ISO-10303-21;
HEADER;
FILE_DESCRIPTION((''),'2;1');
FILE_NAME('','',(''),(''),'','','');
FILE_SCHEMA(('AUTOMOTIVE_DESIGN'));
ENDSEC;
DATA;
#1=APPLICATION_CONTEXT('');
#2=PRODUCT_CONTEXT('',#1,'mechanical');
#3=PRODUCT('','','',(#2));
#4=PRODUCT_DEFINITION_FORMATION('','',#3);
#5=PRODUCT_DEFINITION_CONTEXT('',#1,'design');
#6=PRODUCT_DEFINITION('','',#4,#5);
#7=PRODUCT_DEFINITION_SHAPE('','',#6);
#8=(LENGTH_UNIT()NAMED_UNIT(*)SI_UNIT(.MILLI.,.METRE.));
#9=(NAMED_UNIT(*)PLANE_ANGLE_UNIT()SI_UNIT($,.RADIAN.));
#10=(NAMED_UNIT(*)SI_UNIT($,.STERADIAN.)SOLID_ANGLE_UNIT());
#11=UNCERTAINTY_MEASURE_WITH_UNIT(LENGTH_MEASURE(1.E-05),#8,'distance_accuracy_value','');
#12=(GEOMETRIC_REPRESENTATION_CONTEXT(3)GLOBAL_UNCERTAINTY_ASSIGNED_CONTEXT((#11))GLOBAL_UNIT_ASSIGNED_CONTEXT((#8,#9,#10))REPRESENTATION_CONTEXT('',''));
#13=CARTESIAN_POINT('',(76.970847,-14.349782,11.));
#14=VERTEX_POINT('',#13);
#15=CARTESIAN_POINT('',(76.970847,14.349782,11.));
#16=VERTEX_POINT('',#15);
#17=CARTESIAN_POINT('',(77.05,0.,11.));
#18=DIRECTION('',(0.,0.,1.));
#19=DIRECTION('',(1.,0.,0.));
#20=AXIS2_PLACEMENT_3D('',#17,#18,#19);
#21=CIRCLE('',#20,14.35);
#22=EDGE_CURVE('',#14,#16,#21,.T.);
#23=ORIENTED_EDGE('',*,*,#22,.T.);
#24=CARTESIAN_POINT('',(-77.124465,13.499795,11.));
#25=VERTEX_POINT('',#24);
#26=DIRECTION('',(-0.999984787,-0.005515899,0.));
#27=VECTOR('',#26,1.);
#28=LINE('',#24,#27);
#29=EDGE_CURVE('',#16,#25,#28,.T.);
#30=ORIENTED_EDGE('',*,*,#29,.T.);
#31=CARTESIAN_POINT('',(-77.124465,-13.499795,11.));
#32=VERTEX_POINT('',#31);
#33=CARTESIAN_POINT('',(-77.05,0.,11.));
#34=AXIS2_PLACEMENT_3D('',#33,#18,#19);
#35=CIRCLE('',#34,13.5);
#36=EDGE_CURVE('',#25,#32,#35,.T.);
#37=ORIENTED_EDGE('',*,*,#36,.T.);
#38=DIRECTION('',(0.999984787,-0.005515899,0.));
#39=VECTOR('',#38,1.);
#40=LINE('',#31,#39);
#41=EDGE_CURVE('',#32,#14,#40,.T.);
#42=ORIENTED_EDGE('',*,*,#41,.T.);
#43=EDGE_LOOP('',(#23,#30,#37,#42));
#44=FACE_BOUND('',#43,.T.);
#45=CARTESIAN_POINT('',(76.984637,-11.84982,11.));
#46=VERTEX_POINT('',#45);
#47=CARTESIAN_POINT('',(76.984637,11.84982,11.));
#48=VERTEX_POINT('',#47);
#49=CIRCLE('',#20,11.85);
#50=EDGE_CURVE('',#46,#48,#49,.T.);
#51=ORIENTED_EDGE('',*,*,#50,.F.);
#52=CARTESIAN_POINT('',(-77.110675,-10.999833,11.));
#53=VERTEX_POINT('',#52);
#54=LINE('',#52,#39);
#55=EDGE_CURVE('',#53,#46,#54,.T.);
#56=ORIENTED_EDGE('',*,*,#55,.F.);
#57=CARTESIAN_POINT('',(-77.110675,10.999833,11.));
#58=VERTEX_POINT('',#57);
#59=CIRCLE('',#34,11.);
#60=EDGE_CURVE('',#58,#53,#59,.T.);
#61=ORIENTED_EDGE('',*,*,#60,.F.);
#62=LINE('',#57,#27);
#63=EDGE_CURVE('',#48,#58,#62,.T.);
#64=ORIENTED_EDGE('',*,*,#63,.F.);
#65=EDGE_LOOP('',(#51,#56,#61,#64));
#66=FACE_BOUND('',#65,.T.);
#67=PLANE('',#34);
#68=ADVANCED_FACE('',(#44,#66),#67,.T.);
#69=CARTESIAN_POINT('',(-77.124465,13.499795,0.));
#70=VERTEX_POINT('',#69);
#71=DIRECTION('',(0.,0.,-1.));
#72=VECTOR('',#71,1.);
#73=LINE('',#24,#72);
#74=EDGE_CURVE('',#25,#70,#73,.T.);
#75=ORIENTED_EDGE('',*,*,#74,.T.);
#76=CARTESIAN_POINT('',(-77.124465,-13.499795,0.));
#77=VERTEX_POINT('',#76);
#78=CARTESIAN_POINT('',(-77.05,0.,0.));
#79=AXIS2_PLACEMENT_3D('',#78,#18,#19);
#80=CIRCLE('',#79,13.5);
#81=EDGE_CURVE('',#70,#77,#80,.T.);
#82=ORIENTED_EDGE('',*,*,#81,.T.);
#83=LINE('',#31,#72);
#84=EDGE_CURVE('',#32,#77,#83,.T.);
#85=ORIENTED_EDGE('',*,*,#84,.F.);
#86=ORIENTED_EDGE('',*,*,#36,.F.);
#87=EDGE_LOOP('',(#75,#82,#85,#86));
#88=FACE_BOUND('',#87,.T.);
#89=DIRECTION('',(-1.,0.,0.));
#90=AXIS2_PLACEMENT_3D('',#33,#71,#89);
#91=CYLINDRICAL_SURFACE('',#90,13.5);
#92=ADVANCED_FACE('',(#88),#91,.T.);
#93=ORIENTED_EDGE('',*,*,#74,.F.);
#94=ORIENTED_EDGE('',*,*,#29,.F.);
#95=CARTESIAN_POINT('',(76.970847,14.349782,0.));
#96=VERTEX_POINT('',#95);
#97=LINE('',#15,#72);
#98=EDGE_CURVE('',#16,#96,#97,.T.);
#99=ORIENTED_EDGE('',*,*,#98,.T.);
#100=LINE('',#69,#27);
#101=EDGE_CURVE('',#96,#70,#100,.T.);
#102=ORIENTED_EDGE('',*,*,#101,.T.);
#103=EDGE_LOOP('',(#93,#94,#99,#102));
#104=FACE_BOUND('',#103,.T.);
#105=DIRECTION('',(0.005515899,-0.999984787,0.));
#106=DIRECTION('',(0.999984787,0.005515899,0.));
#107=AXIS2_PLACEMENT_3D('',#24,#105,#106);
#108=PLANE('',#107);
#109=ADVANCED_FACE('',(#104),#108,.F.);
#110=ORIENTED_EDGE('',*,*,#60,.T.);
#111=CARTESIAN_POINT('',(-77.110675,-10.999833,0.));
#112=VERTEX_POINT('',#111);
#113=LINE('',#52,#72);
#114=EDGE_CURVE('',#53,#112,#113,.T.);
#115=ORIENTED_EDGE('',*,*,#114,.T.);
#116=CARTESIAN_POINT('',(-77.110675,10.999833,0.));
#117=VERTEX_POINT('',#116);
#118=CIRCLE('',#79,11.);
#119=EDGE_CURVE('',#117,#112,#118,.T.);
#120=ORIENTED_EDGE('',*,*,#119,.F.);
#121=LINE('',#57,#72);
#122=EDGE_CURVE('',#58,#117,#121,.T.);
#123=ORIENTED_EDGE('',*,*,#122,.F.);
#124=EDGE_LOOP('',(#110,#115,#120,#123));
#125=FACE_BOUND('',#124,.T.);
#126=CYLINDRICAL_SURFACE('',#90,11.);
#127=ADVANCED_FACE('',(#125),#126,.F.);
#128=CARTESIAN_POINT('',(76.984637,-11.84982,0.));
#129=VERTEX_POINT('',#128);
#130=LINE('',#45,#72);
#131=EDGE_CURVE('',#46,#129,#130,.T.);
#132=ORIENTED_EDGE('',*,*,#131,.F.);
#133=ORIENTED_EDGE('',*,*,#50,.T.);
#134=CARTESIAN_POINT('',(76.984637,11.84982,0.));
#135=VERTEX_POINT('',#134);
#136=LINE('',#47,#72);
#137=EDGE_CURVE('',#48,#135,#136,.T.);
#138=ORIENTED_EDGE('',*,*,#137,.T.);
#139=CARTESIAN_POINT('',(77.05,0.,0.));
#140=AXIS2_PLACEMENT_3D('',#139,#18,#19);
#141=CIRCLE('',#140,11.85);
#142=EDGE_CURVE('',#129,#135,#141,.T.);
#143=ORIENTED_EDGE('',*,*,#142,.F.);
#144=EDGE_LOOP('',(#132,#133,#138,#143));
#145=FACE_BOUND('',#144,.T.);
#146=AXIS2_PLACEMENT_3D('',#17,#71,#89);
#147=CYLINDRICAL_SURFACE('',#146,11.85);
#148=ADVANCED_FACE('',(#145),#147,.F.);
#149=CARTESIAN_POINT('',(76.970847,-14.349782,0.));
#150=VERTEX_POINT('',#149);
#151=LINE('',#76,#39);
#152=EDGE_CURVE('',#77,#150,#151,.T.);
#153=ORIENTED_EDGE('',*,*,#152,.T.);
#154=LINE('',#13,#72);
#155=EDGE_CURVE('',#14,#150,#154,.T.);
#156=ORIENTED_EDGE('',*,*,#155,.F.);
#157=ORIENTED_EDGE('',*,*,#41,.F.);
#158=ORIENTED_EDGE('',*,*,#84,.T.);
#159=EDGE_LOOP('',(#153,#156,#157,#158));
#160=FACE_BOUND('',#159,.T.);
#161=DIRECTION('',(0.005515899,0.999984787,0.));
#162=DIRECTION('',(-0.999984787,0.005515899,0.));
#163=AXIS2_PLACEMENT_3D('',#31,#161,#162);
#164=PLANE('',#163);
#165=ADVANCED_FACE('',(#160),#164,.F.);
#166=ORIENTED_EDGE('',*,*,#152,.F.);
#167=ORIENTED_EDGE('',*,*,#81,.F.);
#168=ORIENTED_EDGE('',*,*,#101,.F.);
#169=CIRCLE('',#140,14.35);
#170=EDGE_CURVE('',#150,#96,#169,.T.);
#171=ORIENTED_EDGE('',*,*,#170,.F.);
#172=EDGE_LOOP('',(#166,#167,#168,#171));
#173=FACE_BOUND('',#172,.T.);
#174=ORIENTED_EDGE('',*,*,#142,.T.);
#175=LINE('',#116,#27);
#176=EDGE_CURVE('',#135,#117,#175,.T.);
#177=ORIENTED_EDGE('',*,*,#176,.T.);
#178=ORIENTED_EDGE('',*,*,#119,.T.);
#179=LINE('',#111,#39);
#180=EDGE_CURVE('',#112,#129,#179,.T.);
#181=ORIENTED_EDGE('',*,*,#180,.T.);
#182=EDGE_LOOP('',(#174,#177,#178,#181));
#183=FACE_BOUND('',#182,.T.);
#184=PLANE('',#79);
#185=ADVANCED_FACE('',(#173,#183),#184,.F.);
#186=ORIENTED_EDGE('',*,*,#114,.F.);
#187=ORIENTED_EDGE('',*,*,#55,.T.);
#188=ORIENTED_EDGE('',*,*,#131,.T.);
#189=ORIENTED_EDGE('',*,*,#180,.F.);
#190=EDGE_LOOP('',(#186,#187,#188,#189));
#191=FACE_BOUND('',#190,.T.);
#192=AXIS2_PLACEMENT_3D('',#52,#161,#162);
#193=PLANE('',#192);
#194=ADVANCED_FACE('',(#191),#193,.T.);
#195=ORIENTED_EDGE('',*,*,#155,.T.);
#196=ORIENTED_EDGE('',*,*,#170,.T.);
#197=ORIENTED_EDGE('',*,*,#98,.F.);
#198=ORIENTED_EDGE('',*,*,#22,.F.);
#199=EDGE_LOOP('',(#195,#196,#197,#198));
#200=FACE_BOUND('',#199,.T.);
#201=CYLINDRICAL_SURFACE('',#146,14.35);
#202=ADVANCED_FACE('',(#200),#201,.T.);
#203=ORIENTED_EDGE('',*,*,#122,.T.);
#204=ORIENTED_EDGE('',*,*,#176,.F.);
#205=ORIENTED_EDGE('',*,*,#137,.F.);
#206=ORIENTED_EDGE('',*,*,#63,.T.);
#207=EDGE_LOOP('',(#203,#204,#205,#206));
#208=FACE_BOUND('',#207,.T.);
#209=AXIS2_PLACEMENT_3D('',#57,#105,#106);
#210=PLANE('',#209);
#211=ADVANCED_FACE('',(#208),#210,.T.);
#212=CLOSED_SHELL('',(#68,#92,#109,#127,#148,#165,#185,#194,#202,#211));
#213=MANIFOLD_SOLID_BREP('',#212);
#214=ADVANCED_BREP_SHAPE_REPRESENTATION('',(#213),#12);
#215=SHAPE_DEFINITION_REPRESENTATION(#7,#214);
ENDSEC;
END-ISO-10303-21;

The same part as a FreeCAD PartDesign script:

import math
import FreeCAD as App
import Part
import Sketcher

doc = App.newDocument("Part")
params = doc.addObject("Spreadsheet::Sheet", "Params")
for row, (alias, value) in enumerate([
    ("sketch1_radius", "11 mm"),
    ("sketch1_radius2", "13.5 mm"),
    ("sketch1_radius3", "14.35 mm"),
    ("pad1_length", "11 mm"),
], start=1):
    params.set(f"A{row}", alias)
    params.set(f"B{row}", "=" + value)
    params.setAlias(f"B{row}", alias)

body = doc.addObject("PartDesign::Body", "Body")

# Sketch on XY plane
sketch1 = body.newObject("Sketcher::SketchObject", "Sketch")
sketch1.AttachmentSupport = (doc.getObject("XY_Plane"), [""])
sketch1.MapMode = "FlatFace"
sketch1.addGeometry([
    Part.LineSegment(App.Vector(77, 14, 0), App.Vector(-77, 13, 0)),  # 0
    Part.ArcOfCircle(Part.Circle(App.Vector(-77, 0, 0), App.Vector(0, 0, 1), 14), math.radians(90), math.radians(270)),  # 1
    Part.LineSegment(App.Vector(-77, -13, 0), App.Vector(77, -14, 0)),  # 2
    Part.ArcOfCircle(Part.Circle(App.Vector(77, 0, 0), App.Vector(0, 0, 1), 14), math.radians(-90), math.radians(90)),  # 3
    Part.LineSegment(App.Vector(-77, 11, 0), App.Vector(77, 12, 0)),  # 4
    Part.ArcOfCircle(Part.Circle(App.Vector(77, 0, 0), App.Vector(0, 0, 1), 12), math.radians(-90), math.radians(90)),  # 5
    Part.LineSegment(App.Vector(77, -12, 0), App.Vector(-77, -11, 0)),  # 6
    Part.ArcOfCircle(Part.Circle(App.Vector(-77, 0, 0), App.Vector(0, 0, 1), 11), math.radians(90), math.radians(270)),  # 7
], False)
sketch1.addConstraint([
    Sketcher.Constraint("Tangent", 0, 2, 1, 1),
    Sketcher.Constraint("Tangent", 1, 2, 2, 1),
    Sketcher.Constraint("Tangent", 2, 2, 3, 1),
    Sketcher.Constraint("Tangent", 3, 2, 0, 1),
    Sketcher.Constraint("Tangent", 4, 2, 5, 2),
    Sketcher.Constraint("Tangent", 5, 1, 6, 1),
    Sketcher.Constraint("Tangent", 6, 2, 7, 2),
    Sketcher.Constraint("Tangent", 7, 1, 4, 1),
    Sketcher.Constraint("Coincident", 5, 3, 3, 3),
    Sketcher.Constraint("Coincident", 7, 3, 1, 3),
    Sketcher.Constraint("Symmetric", 1, 3, 3, 3, -1, 1),
    Sketcher.Constraint("PointOnObject", 1, 3, -1),
    Sketcher.Constraint("Parallel", 0, 4),
    Sketcher.Constraint("Radius", 7, 11.0),
    Sketcher.Constraint("Radius", 1, 13.5),
    Sketcher.Constraint("Radius", 3, 14.35),
    Sketcher.Constraint("DistanceX", 1, 3, 3, 3, 154.1),
])
sketch1.setExpression("Constraints[13]", "Params.sketch1_radius")
sketch1.setExpression("Constraints[14]", "Params.sketch1_radius2")
sketch1.setExpression("Constraints[15]", "Params.sketch1_radius3")
pad1 = body.newObject("PartDesign::Pad", "Pad")
pad1.Profile = sketch1
pad1.setExpression("Length", "Params.pad1_length")

doc.recompute()
